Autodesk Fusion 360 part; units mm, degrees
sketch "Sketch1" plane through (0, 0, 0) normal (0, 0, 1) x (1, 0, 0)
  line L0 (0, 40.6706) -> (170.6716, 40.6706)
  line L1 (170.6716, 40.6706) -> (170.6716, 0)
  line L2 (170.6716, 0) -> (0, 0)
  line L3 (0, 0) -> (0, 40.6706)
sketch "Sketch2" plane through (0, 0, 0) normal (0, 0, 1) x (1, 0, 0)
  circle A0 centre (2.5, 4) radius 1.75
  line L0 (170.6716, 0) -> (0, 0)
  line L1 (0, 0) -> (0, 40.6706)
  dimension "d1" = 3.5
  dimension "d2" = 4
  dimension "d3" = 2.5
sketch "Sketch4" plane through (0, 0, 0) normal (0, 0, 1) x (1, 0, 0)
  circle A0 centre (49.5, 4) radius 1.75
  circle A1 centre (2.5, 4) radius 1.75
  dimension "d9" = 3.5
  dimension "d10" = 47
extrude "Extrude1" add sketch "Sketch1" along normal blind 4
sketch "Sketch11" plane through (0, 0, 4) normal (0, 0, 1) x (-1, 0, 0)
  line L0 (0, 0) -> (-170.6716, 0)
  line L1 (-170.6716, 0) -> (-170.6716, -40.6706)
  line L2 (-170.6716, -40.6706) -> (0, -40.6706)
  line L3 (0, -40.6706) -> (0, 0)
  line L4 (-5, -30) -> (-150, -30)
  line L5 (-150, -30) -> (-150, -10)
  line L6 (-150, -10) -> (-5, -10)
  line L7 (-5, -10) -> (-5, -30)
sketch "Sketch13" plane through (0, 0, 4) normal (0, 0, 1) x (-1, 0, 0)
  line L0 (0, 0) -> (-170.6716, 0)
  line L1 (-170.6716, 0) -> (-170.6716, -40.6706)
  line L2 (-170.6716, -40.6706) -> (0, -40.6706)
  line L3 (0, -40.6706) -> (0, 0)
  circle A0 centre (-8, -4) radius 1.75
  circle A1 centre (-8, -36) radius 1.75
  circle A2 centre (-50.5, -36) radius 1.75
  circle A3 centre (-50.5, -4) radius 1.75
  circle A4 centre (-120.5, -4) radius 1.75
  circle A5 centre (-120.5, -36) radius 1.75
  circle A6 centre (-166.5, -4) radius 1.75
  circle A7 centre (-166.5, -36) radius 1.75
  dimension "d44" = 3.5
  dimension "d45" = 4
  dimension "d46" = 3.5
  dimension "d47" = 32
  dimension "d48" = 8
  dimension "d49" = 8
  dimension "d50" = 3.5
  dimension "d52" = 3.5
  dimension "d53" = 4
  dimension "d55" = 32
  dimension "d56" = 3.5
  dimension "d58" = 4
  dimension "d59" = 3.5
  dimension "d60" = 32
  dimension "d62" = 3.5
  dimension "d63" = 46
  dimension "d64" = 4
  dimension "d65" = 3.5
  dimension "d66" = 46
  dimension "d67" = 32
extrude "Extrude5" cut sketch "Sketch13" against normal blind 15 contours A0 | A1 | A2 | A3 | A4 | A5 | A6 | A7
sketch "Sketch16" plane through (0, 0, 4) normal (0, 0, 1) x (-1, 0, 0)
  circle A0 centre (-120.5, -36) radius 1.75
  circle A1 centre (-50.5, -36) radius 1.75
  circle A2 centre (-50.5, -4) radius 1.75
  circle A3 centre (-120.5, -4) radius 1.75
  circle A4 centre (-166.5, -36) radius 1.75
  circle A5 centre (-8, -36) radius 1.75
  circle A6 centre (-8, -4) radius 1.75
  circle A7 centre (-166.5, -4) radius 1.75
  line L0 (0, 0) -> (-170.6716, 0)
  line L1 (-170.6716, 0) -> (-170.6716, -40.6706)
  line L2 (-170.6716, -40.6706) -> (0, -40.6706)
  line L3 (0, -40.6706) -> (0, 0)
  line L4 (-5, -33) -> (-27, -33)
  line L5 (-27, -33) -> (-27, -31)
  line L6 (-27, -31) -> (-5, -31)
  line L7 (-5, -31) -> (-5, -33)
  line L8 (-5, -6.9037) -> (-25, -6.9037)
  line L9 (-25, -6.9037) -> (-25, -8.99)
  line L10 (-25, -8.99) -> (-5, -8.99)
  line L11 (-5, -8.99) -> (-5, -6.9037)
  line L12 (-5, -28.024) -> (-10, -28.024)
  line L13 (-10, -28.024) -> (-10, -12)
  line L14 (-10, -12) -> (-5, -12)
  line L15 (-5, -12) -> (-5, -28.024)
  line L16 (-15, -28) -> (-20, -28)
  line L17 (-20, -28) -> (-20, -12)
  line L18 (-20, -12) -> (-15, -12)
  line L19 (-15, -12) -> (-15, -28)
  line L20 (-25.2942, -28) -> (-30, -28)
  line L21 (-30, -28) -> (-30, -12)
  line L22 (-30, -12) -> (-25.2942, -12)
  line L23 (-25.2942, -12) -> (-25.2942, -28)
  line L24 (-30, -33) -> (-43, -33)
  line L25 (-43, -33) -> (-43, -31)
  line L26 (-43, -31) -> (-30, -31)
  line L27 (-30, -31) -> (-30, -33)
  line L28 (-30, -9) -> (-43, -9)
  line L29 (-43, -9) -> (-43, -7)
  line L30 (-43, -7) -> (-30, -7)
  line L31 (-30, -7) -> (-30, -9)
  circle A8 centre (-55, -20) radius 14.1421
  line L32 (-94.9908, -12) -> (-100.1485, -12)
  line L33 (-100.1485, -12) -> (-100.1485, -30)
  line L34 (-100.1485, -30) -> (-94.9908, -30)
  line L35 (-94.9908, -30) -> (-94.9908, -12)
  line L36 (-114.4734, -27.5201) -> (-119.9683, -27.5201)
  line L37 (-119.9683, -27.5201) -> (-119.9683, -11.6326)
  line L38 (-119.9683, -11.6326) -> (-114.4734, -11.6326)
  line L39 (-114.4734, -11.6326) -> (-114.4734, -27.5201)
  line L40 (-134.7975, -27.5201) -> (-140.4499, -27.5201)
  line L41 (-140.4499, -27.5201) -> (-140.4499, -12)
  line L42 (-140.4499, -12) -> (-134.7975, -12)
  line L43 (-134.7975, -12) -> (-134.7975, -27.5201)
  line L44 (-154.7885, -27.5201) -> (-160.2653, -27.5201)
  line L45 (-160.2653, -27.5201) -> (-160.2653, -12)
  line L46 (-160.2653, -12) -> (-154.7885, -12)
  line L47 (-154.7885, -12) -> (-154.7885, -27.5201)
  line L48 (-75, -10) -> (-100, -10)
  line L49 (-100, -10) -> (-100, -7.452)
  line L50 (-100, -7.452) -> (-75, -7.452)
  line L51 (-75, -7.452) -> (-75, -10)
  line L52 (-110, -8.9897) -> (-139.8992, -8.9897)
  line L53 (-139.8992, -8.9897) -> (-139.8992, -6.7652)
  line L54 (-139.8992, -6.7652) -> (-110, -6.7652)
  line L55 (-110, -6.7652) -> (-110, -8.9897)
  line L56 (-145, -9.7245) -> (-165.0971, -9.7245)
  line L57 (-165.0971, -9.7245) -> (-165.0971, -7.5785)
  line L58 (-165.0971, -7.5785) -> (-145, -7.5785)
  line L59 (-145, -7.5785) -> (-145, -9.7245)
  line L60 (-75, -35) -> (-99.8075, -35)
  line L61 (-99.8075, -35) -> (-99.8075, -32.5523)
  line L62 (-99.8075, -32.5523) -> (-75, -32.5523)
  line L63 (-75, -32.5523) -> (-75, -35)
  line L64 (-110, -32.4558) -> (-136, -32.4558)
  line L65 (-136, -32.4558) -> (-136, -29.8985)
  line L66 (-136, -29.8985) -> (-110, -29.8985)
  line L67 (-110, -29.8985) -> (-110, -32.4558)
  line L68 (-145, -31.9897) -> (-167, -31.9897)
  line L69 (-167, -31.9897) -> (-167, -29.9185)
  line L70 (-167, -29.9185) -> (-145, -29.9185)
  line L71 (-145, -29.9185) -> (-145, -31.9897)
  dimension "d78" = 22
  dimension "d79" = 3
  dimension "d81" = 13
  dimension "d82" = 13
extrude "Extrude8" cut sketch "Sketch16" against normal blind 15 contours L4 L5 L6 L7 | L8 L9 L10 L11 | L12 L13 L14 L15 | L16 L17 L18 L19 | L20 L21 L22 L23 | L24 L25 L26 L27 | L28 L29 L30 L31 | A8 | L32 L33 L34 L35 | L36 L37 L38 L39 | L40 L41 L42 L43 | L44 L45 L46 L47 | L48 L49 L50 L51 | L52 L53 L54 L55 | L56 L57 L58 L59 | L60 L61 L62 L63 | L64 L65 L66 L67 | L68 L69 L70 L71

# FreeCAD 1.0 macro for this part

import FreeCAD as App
import Part
import Sketcher

V = App.Vector
Q = App.Units.Quantity

doc = App.newDocument("Part")
body = doc.addObject("PartDesign::Body", "Body")

sketch1 = doc.addObject("Sketcher::SketchObject", "Sketch")
body.addObject(sketch1)
sketch1.AttachmentSupport = (doc.XY_Plane, [""])
sketch1.MapMode = "FlatFace"
sketch1.addGeometry([
    Part.LineSegment(V(171, 41, 0), V(0, 41, 0)),
    Part.LineSegment(V(0, 41, 0), V(0, 0, 0)),
    Part.LineSegment(V(0, 0, 0), V(171, 0, 0)),
    Part.LineSegment(V(171, 0, 0), V(171, 41, 0)),
], False)
sketch1.addConstraint([
    Sketcher.Constraint("Coincident", 0, 2, 1, 1),
    Sketcher.Constraint("Coincident", 1, 2, 2, 1),
    Sketcher.Constraint("Coincident", 2, 2, 3, 1),
    Sketcher.Constraint("Coincident", 3, 2, 0, 1),
    Sketcher.Constraint("Horizontal", 0),
    Sketcher.Constraint("Vertical", 1),
    Sketcher.Constraint("Horizontal", 2),
    Sketcher.Constraint("Vertical", 3),
    Sketcher.Constraint("Coincident", 1, 2, -1, 1),
    Sketcher.Constraint("DistanceX", 0, 2, 0, 1, Q("170.6716 mm")),
    Sketcher.Constraint("DistanceY", 1, 2, 1, 1, Q("40.6706 mm")),
])
pad1 = doc.addObject("PartDesign::Pad", "Pad")
body.addObject(pad1)
pad1.Profile = sketch1
pad1.Length = 4

sketch2 = doc.addObject("Sketcher::SketchObject", "Sketch001")
body.addObject(sketch2)
sketch2.AttachmentSupport = (doc.XY_Plane, [""])
sketch2.MapMode = "FlatFace"
sketch2.AttachmentOffset = App.Placement(V(0, 0, 4), App.Rotation())
sketch2.addGeometry([
    Part.Circle(V(8, 4, 0), V(0, 0, 1), 1.8),
    Part.Circle(V(8, 36, 0), V(0, 0, 1), 1.8),
    Part.Circle(V(50.5, 36, 0), V(0, 0, 1), 1.8),
    Part.Circle(V(50.5, 4, 0), V(0, 0, 1), 1.8),
    Part.Circle(V(120.5, 4, 0), V(0, 0, 1), 1.8),
    Part.Circle(V(120.5, 36, 0), V(0, 0, 1), 1.8),
    Part.Circle(V(166.5, 4, 0), V(0, 0, 1), 1.8),
    Part.Circle(V(166.5, 36, 0), V(0, 0, 1), 1.8),
], False)
sketch2.addConstraint([
    Sketcher.Constraint("Equal", 0, 1),
    Sketcher.Constraint("Equal", 1, 2),
    Sketcher.Constraint("Equal", 2, 3),
    Sketcher.Constraint("Equal", 3, 4),
    Sketcher.Constraint("Equal", 4, 5),
    Sketcher.Constraint("Equal", 5, 6),
    Sketcher.Constraint("Equal", 6, 7),
    Sketcher.Constraint("Horizontal", 1, 3, 2, 3),
    Sketcher.Constraint("Horizontal", 0, 3, 3, 3),
    Sketcher.Constraint("Horizontal", 3, 3, 4, 3),
    Sketcher.Constraint("Horizontal", 2, 3, 5, 3),
    Sketcher.Constraint("Horizontal", 4, 3, 6, 3),
    Sketcher.Constraint("Horizontal", 5, 3, 7, 3),
    Sketcher.Constraint("Vertical", 0, 3, 1, 3),
    Sketcher.Constraint("Vertical", 2, 3, 3, 3),
    Sketcher.Constraint("Vertical", 4, 3, 5, 3),
    Sketcher.Constraint("Vertical", 6, 3, 7, 3),
    Sketcher.Constraint("Diameter", 0, Q("3.5 mm")),
    Sketcher.Constraint("DistanceX", -1, 1, 0, 3, Q("8 mm")),
    Sketcher.Constraint("DistanceY", -1, 1, 0, 3, Q("4 mm")),
    Sketcher.Constraint("DistanceY", 0, 3, 1, 3, Q("32 mm")),
    Sketcher.Constraint("DistanceX", 4, 3, 6, 3, Q("46 mm")),
    Sketcher.Constraint("DistanceX", 3, 3, 4, 3, Q("70 mm")),
    Sketcher.Constraint("DistanceX", -1, 1, 2, 3, Q("50.5 mm")),
])
pocket1 = doc.addObject("PartDesign::Pocket", "Pocket")
body.addObject(pocket1)
pocket1.Profile = sketch2
pocket1.Length = 15

sketch3 = doc.addObject("Sketcher::SketchObject", "Sketch002")
body.addObject(sketch3)
sketch3.AttachmentSupport = (doc.XY_Plane, [""])
sketch3.MapMode = "FlatFace"
sketch3.AttachmentOffset = App.Placement(V(0, 0, 4), App.Rotation())
sketch3.addGeometry([
    Part.LineSegment(V(27, 33, 0), V(5, 33, 0)),
    Part.LineSegment(V(5, 33, 0), V(5, 31, 0)),
    Part.LineSegment(V(5, 31, 0), V(27, 31, 0)),
    Part.LineSegment(V(27, 31, 0), V(27, 33, 0)),
    Part.LineSegment(V(5, 9, 0), V(5, 6.9, 0)),
    Part.LineSegment(V(5, 6.9, 0), V(25, 6.9, 0)),
    Part.LineSegment(V(25, 6.9, 0), V(25, 9, 0)),
    Part.LineSegment(V(25, 9, 0), V(5, 9, 0)),
    Part.LineSegment(V(10, 28, 0), V(5, 28, 0)),
    Part.LineSegment(V(5, 28, 0), V(5, 12, 0)),
    Part.LineSegment(V(5, 12, 0), V(10, 12, 0)),
    Part.LineSegment(V(10, 12, 0), V(10, 28, 0)),
    Part.LineSegment(V(20, 28, 0), V(15, 28, 0)),
    Part.LineSegment(V(15, 28, 0), V(15, 12, 0)),
    Part.LineSegment(V(15, 12, 0), V(20, 12, 0)),
    Part.LineSegment(V(20, 12, 0), V(20, 28, 0)),
    Part.LineSegment(V(30, 28, 0), V(25.3, 28, 0)),
    Part.LineSegment(V(25.3, 28, 0), V(25.3, 12, 0)),
    Part.LineSegment(V(25.3, 12, 0), V(30, 12, 0)),
    Part.LineSegment(V(30, 12, 0), V(30, 28, 0)),
    Part.LineSegment(V(43, 33, 0), V(30, 33, 0)),
    Part.LineSegment(V(30, 33, 0), V(30, 31, 0)),
    Part.LineSegment(V(30, 31, 0), V(43, 31, 0)),
    Part.LineSegment(V(43, 31, 0), V(43, 33, 0)),
    Part.LineSegment(V(43, 9, 0), V(30, 9, 0)),
    Part.LineSegment(V(30, 9, 0), V(30, 7, 0)),
    Part.LineSegment(V(30, 7, 0), V(43, 7, 0)),
    Part.LineSegment(V(43, 7, 0), V(43, 9, 0)),
    Part.Circle(V(55, 20, 0), V(0, 0, 1), 14.1),
    Part.LineSegment(V(95, 30, 0), V(95, 12, 0)),
    Part.LineSegment(V(95, 12, 0), V(100.1, 12, 0)),
    Part.LineSegment(V(100.1, 12, 0), V(100.1, 30, 0)),
    Part.LineSegment(V(100.1, 30, 0), V(95, 30, 0)),
    Part.LineSegment(V(120, 27.5, 0), V(114.5, 27.5, 0)),
    Part.LineSegment(V(114.5, 27.5, 0), V(114.5, 11.6, 0)),
    Part.LineSegment(V(114.5, 11.6, 0), V(120, 11.6, 0)),
    Part.LineSegment(V(120, 11.6, 0), V(120, 27.5, 0)),
    Part.LineSegment(V(140.4, 27.5, 0), V(134.8, 27.5, 0)),
    Part.LineSegment(V(134.8, 27.5, 0), V(134.8, 12, 0)),
    Part.LineSegment(V(134.8, 12, 0), V(140.4, 12, 0)),
    Part.LineSegment(V(140.4, 12, 0), V(140.4, 27.5, 0)),
    Part.LineSegment(V(160.3, 27.5, 0), V(154.8, 27.5, 0)),
    Part.LineSegment(V(154.8, 27.5, 0), V(154.8, 12, 0)),
    Part.LineSegment(V(154.8, 12, 0), V(160.3, 12, 0)),
    Part.LineSegment(V(160.3, 12, 0), V(160.3, 27.5, 0)),
    Part.LineSegment(V(100, 10, 0), V(75, 10, 0)),
    Part.LineSegment(V(75, 10, 0), V(75, 7.5, 0)),
    Part.LineSegment(V(75, 7.5, 0), V(100, 7.5, 0)),
    Part.LineSegment(V(100, 7.5, 0), V(100, 10, 0)),
    Part.LineSegment(V(139.9, 9, 0), V(110, 9, 0)),
    Part.LineSegment(V(110, 9, 0), V(110, 6.8, 0)),
    Part.LineSegment(V(110, 6.8, 0), V(139.9, 6.8, 0)),
    Part.LineSegment(V(139.9, 6.8, 0), V(139.9, 9, 0)),
    Part.LineSegment(V(165.1, 9.7, 0), V(145, 9.7, 0)),
    Part.LineSegment(V(145, 9.7, 0), V(145, 7.6, 0)),
    Part.LineSegment(V(145, 7.6, 0), V(165.1, 7.6, 0)),
    Part.LineSegment(V(165.1, 7.6, 0), V(165.1, 9.7, 0)),
    Part.LineSegment(V(99.8, 35, 0), V(75, 35, 0)),
    Part.LineSegment(V(75, 35, 0), V(75, 32.6, 0)),
    Part.LineSegment(V(75, 32.6, 0), V(99.8, 32.6, 0)),
    Part.LineSegment(V(99.8, 32.6, 0), V(99.8, 35, 0)),
    Part.LineSegment(V(136, 32.5, 0), V(110, 32.5, 0)),
    Part.LineSegment(V(110, 32.5, 0), V(110, 29.9, 0)),
    Part.LineSegment(V(110, 29.9, 0), V(136, 29.9, 0)),
    Part.LineSegment(V(136, 29.9, 0), V(136, 32.5, 0)),
    Part.LineSegment(V(167, 32, 0), V(145, 32, 0)),
    Part.LineSegment(V(145, 32, 0), V(145, 29.9, 0)),
    Part.LineSegment(V(145, 29.9, 0), V(167, 29.9, 0)),
    Part.LineSegment(V(167, 29.9, 0), V(167, 32, 0)),
], False)
sketch3.addConstraint([
    Sketcher.Constraint("Coincident", 0, 2, 1, 1),
    Sketcher.Constraint("Coincident", 1, 2, 2, 1),
    Sketcher.Constraint("Coincident", 2, 2, 3, 1),
    Sketcher.Constraint("Coincident", 3, 2, 0, 1),
    Sketcher.Constraint("Coincident", 4, 2, 5, 1),
    Sketcher.Constraint("Coincident", 5, 2, 6, 1),
    Sketcher.Constraint("Coincident", 6, 2, 7, 1),
    Sketcher.Constraint("Coincident", 7, 2, 4, 1),
    Sketcher.Constraint("Coincident", 8, 2, 9, 1),
    Sketcher.Constraint("Coincident", 9, 2, 10, 1),
    Sketcher.Constraint("Coincident", 10, 2, 11, 1),
    Sketcher.Constraint("Coincident", 11, 2, 8, 1),
    Sketcher.Constraint("Coincident", 12, 2, 13, 1),
    Sketcher.Constraint("Coincident", 13, 2, 14, 1),
    Sketcher.Constraint("Coincident", 14, 2, 15, 1),
    Sketcher.Constraint("Coincident", 15, 2, 12, 1),
    Sketcher.Constraint("Coincident", 16, 2, 17, 1),
    Sketcher.Constraint("Coincident", 17, 2, 18, 1),
    Sketcher.Constraint("Coincident", 18, 2, 19, 1),
    Sketcher.Constraint("Coincident", 19, 2, 16, 1),
    Sketcher.Constraint("Coincident", 20, 2, 21, 1),
    Sketcher.Constraint("Coincident", 21, 2, 22, 1),
    Sketcher.Constraint("Coincident", 22, 2, 23, 1),
    Sketcher.Constraint("Coincident", 23, 2, 20, 1),
    Sketcher.Constraint("Coincident", 24, 2, 25, 1),
    Sketcher.Constraint("Coincident", 25, 2, 26, 1),
    Sketcher.Constraint("Coincident", 26, 2, 27, 1),
    Sketcher.Constraint("Coincident", 27, 2, 24, 1),
    Sketcher.Constraint("Coincident", 29, 2, 30, 1),
    Sketcher.Constraint("Coincident", 30, 2, 31, 1),
    Sketcher.Constraint("Coincident", 31, 2, 32, 1),
    Sketcher.Constraint("Coincident", 32, 2, 29, 1),
    Sketcher.Constraint("Coincident", 33, 2, 34, 1),
    Sketcher.Constraint("Coincident", 34, 2, 35, 1),
    Sketcher.Constraint("Coincident", 35, 2, 36, 1),
    Sketcher.Constraint("Coincident", 36, 2, 33, 1),
    Sketcher.Constraint("Coincident", 37, 2, 38, 1),
    Sketcher.Constraint("Coincident", 38, 2, 39, 1),
    Sketcher.Constraint("Coincident", 39, 2, 40, 1),
    Sketcher.Constraint("Coincident", 40, 2, 37, 1),
    Sketcher.Constraint("Coincident", 41, 2, 42, 1),
    Sketcher.Constraint("Coincident", 42, 2, 43, 1),
    Sketcher.Constraint("Coincident", 43, 2, 44, 1),
    Sketcher.Constraint("Coincident", 44, 2, 41, 1),
    Sketcher.Constraint("Coincident", 45, 2, 46, 1),
    Sketcher.Constraint("Coincident", 46, 2, 47, 1),
    Sketcher.Constraint("Coincident", 47, 2, 48, 1),
    Sketcher.Constraint("Coincident", 48, 2, 45, 1),
    Sketcher.Constraint("Coincident", 49, 2, 50, 1),
    Sketcher.Constraint("Coincident", 50, 2, 51, 1),
    Sketcher.Constraint("Coincident", 51, 2, 52, 1),
    Sketcher.Constraint("Coincident", 52, 2, 49, 1),
    Sketcher.Constraint("Coincident", 53, 2, 54, 1),
    Sketcher.Constraint("Coincident", 54, 2, 55, 1),
    Sketcher.Constraint("Coincident", 55, 2, 56, 1),
    Sketcher.Constraint("Coincident", 56, 2, 53, 1),
    Sketcher.Constraint("Coincident", 57, 2, 58, 1),
    Sketcher.Constraint("Coincident", 58, 2, 59, 1),
    Sketcher.Constraint("Coincident", 59, 2, 60, 1),
    Sketcher.Constraint("Coincident", 60, 2, 57, 1),
    Sketcher.Constraint("Coincident", 61, 2, 62, 1),
    Sketcher.Constraint("Coincident", 62, 2, 63, 1),
    Sketcher.Constraint("Coincident", 63, 2, 64, 1),
    Sketcher.Constraint("Coincident", 64, 2, 61, 1),
    Sketcher.Constraint("Coincident", 65, 2, 66, 1),
    Sketcher.Constraint("Coincident", 66, 2, 67, 1),
    Sketcher.Constraint("Coincident", 67, 2, 68, 1),
    Sketcher.Constraint("Coincident", 68, 2, 65, 1),
    Sketcher.Constraint("Horizontal", 0),
    Sketcher.Constraint("Vertical", 1),
    Sketcher.Constraint("Horizontal", 2),
    Sketcher.Constraint("Vertical", 3),
    Sketcher.Constraint("Vertical", 4),
    Sketcher.Constraint("Horizontal", 5),
    Sketcher.Constraint("Vertical", 6),
    Sketcher.Constraint("Horizontal", 7),
    Sketcher.Constraint("Horizontal", 8),
    Sketcher.Constraint("Vertical", 9),
    Sketcher.Constraint("Horizontal", 10),
    Sketcher.Constraint("Vertical", 11),
    Sketcher.Constraint("Horizontal", 12),
    Sketcher.Constraint("Vertical", 13),
    Sketcher.Constraint("Horizontal", 14),
    Sketcher.Constraint("Vertical", 15),
    Sketcher.Constraint("Horizontal", 16),
    Sketcher.Constraint("Vertical", 17),
    Sketcher.Constraint("Horizontal", 18),
    Sketcher.Constraint("Vertical", 19),
    Sketcher.Constraint("Horizontal", 20),
    Sketcher.Constraint("Vertical", 21),
    Sketcher.Constraint("Horizontal", 22),
    Sketcher.Constraint("Vertical", 23),
    Sketcher.Constraint("Horizontal", 24),
    Sketcher.Constraint("Vertical", 25),
    Sketcher.Constraint("Horizontal", 26),
    Sketcher.Constraint("Vertical", 27),
    Sketcher.Constraint("Vertical", 29),
    Sketcher.Constraint("Horizontal", 30),
    Sketcher.Constraint("Vertical", 31),
    Sketcher.Constraint("Horizontal", 32),
    Sketcher.Constraint("Horizontal", 33),
    Sketcher.Constraint("Vertical", 34),
    Sketcher.Constraint("Horizontal", 35),
    Sketcher.Constraint("Vertical", 36),
    Sketcher.Constraint("Horizontal", 37),
    Sketcher.Constraint("Vertical", 38),
    Sketcher.Constraint("Horizontal", 39),
    Sketcher.Constraint("Vertical", 40),
    Sketcher.Constraint("Horizontal", 41),
    Sketcher.Constraint("Vertical", 42),
    Sketcher.Constraint("Horizontal", 43),
    Sketcher.Constraint("Vertical", 44),
    Sketcher.Constraint("Horizontal", 45),
    Sketcher.Constraint("Vertical", 46),
    Sketcher.Constraint("Horizontal", 47),
    Sketcher.Constraint("Vertical", 48),
    Sketcher.Constraint("Horizontal", 49),
    Sketcher.Constraint("Vertical", 50),
    Sketcher.Constraint("Horizontal", 51),
    Sketcher.Constraint("Vertical", 52),
    Sketcher.Constraint("Horizontal", 53),
    Sketcher.Constraint("Vertical", 54),
    Sketcher.Constraint("Horizontal", 55),
    Sketcher.Constraint("Vertical", 56),
    Sketcher.Constraint("Horizontal", 57),
    Sketcher.Constraint("Vertical", 58),
    Sketcher.Constraint("Horizontal", 59),
    Sketcher.Constraint("Vertical", 60),
    Sketcher.Constraint("Horizontal", 61),
    Sketcher.Constraint("Vertical", 62),
    Sketcher.Constraint("Horizontal", 63),
    Sketcher.Constraint("Vertical", 64),
    Sketcher.Constraint("Horizontal", 65),
    Sketcher.Constraint("Vertical", 66),
    Sketcher.Constraint("Horizontal", 67),
    Sketcher.Constraint("Vertical", 68),
    Sketcher.Constraint("Horizontal", 10, 2, 13, 2),
    Sketcher.Constraint("Horizontal", 15, 2, 16, 2),
    Sketcher.Constraint("Horizontal", 14, 2, 17, 2),
    Sketcher.Constraint("Horizontal", 3, 2, 20, 2),
    Sketcher.Constraint("Horizontal", 2, 2, 21, 2),
    Sketcher.Constraint("Horizontal", 18, 2, 29, 2),
    Sketcher.Constraint("Horizontal", 36, 2, 37, 2),
    Sketcher.Constraint("Horizontal", 30, 2, 38, 2),
    Sketcher.Constraint("Horizontal", 40, 2, 41, 2),
    Sketcher.Constraint("Horizontal", 39, 2, 42, 2),
    Sketcher.Constraint("Vertical", 1, 2, 4, 2),
    Sketcher.Constraint("Vertical", 7, 2, 8, 2),
    Sketcher.Constraint("Vertical", 19, 2, 20, 2),
    Sketcher.Constraint("Vertical", 21, 2, 24, 2),
    Sketcher.Constraint("Vertical", 23, 2, 26, 2),
    Sketcher.Constraint("Vertical", 46, 2, 57, 2),
    Sketcher.Constraint("Vertical", 50, 2, 61, 2),
    Sketcher.Constraint("Vertical", 54, 2, 65, 2),
    Sketcher.Constraint("Equal", 10, 12),
    Sketcher.Constraint("Equal", 2, 65),
    Sketcher.Constraint("Equal", 23, 25),
    Sketcher.Constraint("DistanceX", 0, 2, 0, 1, Q("22 mm")),
    Sketcher.Constraint("DistanceX", 20, 2, 20, 1, Q("13 mm")),
    Sketcher.Constraint("DistanceX", 5, 1, 5, 2, Q("20 mm")),
    Sketcher.Constraint("DistanceX", 8, 2, 8, 1, Q("5 mm")),
    Sketcher.Constraint("DistanceX", 45, 2, 45, 1, Q("25 mm")),
    Sketcher.Constraint("DistanceX", 61, 2, 61, 1, Q("26 mm")),
    Sketcher.Constraint("DistanceY", 1, 2, 1, 1, Q("2 mm")),
    Sketcher.Constraint("DistanceY", 13, 2, 13, 1, Q("16 mm")),
    Sketcher.Constraint("DistanceY", 29, 2, 29, 1, Q("18 mm")),
    Sketcher.Constraint("DistanceX", -1, 1, 28, 3, Q("55 mm")),
    Sketcher.Constraint("DistanceY", -1, 1, 28, 3, Q("20 mm")),
    Sketcher.Constraint("DistanceX", -1, 1, 0, 2, Q("5 mm")),
    Sketcher.Constraint("DistanceY", -1, 1, 0, 2, Q("33 mm")),
    Sketcher.Constraint("DistanceY", -1, 1, 9, 2, Q("12 mm")),
    Sketcher.Constraint("DistanceX", -1, 1, 12, 2, Q("15 mm")),
    Sketcher.Constraint("DistanceX", -1, 1, 18, 2, Q("30 mm")),
    Sketcher.Constraint("DistanceY", -1, 1, 24, 2, Q("9 mm")),
    Sketcher.Constraint("DistanceX", -1, 1, 45, 2, Q("75 mm")),
    Sketcher.Constraint("DistanceY", -1, 1, 45, 2, Q("10 mm")),
    Sketcher.Constraint("DistanceX", -1, 1, 49, 2, Q("110 mm")),
    Sketcher.Constraint("DistanceX", -1, 1, 53, 2, Q("145 mm")),
    Sketcher.Constraint("DistanceY", -1, 1, 57, 2, Q("35 mm")),
    Sketcher.Constraint("Diameter", 28, Q("28.2842 mm")),
    Sketcher.Constraint("DistanceY", 38, 2, 38, 1, Q("15.52 mm")),
    Sketcher.Constraint("DistanceX", 33, 2, 33, 1, Q("5.495 mm")),
    Sketcher.Constraint("DistanceX", 53, 2, 53, 1, Q("20.097 mm")),
    Sketcher.Constraint("DistanceY", 9, 2, 9, 1, Q("16.024 mm")),
    Sketcher.Constraint("DistanceY", 46, 2, 46, 1, Q("2.548 mm")),
    Sketcher.Constraint("DistanceY", 54, 2, 54, 1, Q("2.146 mm")),
    Sketcher.Constraint("DistanceY", -1, 1, 6, 2, Q("8.99 mm")),
    Sketcher.Constraint("DistanceX", -1, 1, 39, 2, Q("140.45 mm")),
    Sketcher.Constraint("DistanceX", 16, 2, 16, 1, Q("4.7058 mm")),
    Sketcher.Constraint("DistanceX", 30, 1, 30, 2, Q("5.1577 mm")),
    Sketcher.Constraint("DistanceX", 37, 2, 37, 1, Q("5.6524 mm")),
    Sketcher.Constraint("DistanceX", 41, 2, 41, 1, Q("5.4768 mm")),
    Sketcher.Constraint("DistanceX", 49, 2, 49, 1, Q("29.8992 mm")),
    Sketcher.Constraint("DistanceX", 57, 2, 57, 1, Q("24.8075 mm")),
    Sketcher.Constraint("DistanceY", 4, 2, 4, 1, Q("2.0863 mm")),
    Sketcher.Constraint("DistanceY", 34, 2, 34, 1, Q("15.8875 mm")),
    Sketcher.Constraint("DistanceY", 50, 2, 50, 1, Q("2.2245 mm")),
    Sketcher.Constraint("DistanceY", 58, 2, 58, 1, Q("2.4477 mm")),
    Sketcher.Constraint("DistanceY", 62, 2, 62, 1, Q("2.5573 mm")),
    Sketcher.Constraint("DistanceY", 66, 2, 66, 1, Q("2.0712 mm")),
    Sketcher.Constraint("DistanceX", -1, 1, 29, 2, Q("94.9908 mm")),
    Sketcher.Constraint("DistanceX", -1, 1, 33, 2, Q("114.4734 mm")),
    Sketcher.Constraint("DistanceX", -1, 1, 41, 2, Q("154.7885 mm")),
    Sketcher.Constraint("DistanceY", -1, 1, 49, 2, Q("8.9897 mm")),
    Sketcher.Constraint("DistanceY", -1, 1, 53, 2, Q("9.7245 mm")),
    Sketcher.Constraint("DistanceY", -1, 1, 61, 2, Q("32.4558 mm")),
    Sketcher.Constraint("DistanceY", -1, 1, 65, 2, Q("31.9897 mm")),
])
pocket2 = doc.addObject("PartDesign::Pocket", "Pocket001")
body.addObject(pocket2)
pocket2.Profile = sketch3
pocket2.Length = 15

doc.recompute()
